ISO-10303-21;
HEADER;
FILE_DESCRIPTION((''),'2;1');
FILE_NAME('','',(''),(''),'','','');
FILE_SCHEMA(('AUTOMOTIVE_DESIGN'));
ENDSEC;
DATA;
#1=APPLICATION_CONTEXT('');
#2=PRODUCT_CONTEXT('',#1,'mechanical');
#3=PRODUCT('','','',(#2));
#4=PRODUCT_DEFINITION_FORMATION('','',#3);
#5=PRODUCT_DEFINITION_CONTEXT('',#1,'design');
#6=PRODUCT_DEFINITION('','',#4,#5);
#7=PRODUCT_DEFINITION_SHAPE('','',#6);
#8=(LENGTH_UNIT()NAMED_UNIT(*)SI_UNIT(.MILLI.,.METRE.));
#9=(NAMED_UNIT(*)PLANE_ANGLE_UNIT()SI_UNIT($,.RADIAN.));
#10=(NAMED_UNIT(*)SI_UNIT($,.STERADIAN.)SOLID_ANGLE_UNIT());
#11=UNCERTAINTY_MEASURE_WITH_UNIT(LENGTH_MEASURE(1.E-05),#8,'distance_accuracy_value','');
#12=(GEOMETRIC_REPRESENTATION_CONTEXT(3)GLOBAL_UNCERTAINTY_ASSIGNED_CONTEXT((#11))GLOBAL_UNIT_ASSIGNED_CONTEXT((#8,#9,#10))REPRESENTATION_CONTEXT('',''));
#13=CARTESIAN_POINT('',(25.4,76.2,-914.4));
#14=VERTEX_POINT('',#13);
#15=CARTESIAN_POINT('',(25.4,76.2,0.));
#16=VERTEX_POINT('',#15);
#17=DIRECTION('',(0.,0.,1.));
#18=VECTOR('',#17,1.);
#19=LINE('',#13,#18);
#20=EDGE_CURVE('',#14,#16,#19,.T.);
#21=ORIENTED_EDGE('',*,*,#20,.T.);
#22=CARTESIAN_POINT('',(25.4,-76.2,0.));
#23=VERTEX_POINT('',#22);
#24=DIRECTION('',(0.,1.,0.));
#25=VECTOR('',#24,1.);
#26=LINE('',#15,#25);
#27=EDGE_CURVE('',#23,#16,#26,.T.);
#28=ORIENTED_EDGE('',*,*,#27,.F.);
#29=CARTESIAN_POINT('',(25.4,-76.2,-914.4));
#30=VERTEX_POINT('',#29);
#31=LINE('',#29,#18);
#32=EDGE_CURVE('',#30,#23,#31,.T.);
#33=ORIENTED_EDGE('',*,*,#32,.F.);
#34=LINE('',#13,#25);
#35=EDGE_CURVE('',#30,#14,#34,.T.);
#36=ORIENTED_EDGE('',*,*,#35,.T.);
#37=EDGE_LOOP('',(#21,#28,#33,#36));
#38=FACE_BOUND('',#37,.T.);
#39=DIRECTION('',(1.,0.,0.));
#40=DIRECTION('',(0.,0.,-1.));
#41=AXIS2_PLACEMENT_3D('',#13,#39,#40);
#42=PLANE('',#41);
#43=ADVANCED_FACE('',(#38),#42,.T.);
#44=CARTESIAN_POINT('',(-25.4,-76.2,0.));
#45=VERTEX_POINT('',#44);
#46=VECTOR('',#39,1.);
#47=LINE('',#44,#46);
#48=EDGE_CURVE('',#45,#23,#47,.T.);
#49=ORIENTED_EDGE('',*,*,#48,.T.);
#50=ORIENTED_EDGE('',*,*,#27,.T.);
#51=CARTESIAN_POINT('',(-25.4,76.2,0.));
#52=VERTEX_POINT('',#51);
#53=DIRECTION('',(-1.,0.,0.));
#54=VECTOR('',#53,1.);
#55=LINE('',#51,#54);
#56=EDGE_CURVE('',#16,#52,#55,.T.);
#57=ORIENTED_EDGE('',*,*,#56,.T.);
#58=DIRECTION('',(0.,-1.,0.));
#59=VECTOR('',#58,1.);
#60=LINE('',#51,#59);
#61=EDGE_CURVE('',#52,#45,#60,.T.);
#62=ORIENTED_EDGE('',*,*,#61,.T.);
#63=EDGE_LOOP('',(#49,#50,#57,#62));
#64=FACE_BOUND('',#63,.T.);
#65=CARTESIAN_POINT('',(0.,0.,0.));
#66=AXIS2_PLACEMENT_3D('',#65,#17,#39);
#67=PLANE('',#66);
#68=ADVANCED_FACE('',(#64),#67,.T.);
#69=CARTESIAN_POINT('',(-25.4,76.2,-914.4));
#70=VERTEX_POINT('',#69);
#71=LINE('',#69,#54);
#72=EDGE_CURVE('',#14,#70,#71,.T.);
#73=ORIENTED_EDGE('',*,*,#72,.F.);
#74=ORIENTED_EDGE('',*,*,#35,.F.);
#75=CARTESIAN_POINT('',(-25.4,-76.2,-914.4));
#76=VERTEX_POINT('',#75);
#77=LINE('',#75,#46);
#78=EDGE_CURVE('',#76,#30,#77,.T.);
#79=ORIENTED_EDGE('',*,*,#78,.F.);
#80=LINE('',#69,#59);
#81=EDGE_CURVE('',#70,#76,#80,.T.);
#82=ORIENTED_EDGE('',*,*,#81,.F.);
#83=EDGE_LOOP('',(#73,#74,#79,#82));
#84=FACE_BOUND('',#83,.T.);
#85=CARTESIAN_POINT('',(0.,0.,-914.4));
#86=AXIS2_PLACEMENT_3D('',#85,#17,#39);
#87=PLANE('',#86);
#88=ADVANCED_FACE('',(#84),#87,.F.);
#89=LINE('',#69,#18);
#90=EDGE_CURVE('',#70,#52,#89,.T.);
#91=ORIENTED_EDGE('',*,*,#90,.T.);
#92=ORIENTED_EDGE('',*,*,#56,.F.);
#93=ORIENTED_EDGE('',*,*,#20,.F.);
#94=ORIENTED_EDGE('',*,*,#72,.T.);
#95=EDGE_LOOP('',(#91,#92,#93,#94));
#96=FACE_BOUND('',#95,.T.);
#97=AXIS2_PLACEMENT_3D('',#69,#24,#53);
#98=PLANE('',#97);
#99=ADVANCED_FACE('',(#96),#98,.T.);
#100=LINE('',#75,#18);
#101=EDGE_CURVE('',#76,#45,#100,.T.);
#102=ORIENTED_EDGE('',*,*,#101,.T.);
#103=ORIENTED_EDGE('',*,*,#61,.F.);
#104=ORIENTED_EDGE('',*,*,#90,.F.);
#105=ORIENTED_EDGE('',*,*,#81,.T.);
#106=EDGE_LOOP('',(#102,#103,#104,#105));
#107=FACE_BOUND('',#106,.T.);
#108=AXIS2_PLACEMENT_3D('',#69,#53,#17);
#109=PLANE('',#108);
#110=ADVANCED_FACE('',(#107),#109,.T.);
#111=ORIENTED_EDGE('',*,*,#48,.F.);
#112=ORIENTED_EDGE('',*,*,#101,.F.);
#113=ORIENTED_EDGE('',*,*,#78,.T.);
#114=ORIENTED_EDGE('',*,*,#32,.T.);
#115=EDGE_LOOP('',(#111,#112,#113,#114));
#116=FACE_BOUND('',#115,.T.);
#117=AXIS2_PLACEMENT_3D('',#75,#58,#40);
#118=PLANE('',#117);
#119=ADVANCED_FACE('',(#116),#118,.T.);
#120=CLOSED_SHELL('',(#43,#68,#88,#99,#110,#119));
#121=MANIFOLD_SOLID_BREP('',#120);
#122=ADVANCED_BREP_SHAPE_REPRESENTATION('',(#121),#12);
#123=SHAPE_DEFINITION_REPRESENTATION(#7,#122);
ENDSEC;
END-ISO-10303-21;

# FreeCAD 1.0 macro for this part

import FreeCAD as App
import Part
import Sketcher

V = App.Vector
Q = App.Units.Quantity


def add_polygon(sketch, points):
    """Adds a closed chain of lines whose ends are joined by coincident constraints."""
    first, n = sketch.GeometryCount, len(points)
    for a, b in zip(points, points[1:] + points[:1]):
        sketch.addGeometry(Part.LineSegment(App.Vector(*a, 0), App.Vector(*b, 0)), False)
    for i in range(n):
        sketch.addConstraint(Sketcher.Constraint("Coincident", first + i, 2, first + (i + 1) % n, 1))

doc = App.newDocument("Part")
params = doc.addObject("Spreadsheet::Sheet", "Params")
for row, (alias, value) in enumerate([
    ("sketch1_width", "2 in"),
    ("sketch1_height", "6 in"),
    ("pad1_length", "36 in"),
], start=1):
    params.set(f"A{row}", alias)
    params.set(f"B{row}", "=" + value)
    params.setAlias(f"B{row}", alias)

body = doc.addObject("PartDesign::Body", "Body")

# Sketch on XY plane
sketch1 = body.newObject("Sketcher::SketchObject", "Sketch")
sketch1.AttachmentSupport = (doc.getObject("XY_Plane"), [""])
sketch1.MapMode = "FlatFace"
add_polygon(sketch1, [(-25, 76), (-25, -76), (25, -76), (25, 76)])  # lines 0-3
sketch1.addConstraint(Sketcher.Constraint("Vertical", 0))
sketch1.addConstraint(Sketcher.Constraint("Horizontal", 1))
sketch1.addConstraint(Sketcher.Constraint("Vertical", 2))
sketch1.addConstraint(Sketcher.Constraint("Horizontal", 3))
sketch1.addConstraint(Sketcher.Constraint("Symmetric", 0, 2, 2, 2, -1, 1))
sketch1.addConstraint(Sketcher.Constraint("DistanceX", 1, 1, 1, 2, Q("2 in")))
sketch1.addConstraint(Sketcher.Constraint("DistanceY", 0, 2, 0, 1, Q("6 in")))
sketch1.setExpression("Constraints[9]", "Params.sketch1_width")
sketch1.setExpression("Constraints[10]", "Params.sketch1_height")
pad1 = body.newObject("PartDesign::Pad", "Pad")
pad1.Profile = sketch1
pad1.setExpression("Length", "Params.pad1_length")
pad1.Reversed = True

doc.recompute()
